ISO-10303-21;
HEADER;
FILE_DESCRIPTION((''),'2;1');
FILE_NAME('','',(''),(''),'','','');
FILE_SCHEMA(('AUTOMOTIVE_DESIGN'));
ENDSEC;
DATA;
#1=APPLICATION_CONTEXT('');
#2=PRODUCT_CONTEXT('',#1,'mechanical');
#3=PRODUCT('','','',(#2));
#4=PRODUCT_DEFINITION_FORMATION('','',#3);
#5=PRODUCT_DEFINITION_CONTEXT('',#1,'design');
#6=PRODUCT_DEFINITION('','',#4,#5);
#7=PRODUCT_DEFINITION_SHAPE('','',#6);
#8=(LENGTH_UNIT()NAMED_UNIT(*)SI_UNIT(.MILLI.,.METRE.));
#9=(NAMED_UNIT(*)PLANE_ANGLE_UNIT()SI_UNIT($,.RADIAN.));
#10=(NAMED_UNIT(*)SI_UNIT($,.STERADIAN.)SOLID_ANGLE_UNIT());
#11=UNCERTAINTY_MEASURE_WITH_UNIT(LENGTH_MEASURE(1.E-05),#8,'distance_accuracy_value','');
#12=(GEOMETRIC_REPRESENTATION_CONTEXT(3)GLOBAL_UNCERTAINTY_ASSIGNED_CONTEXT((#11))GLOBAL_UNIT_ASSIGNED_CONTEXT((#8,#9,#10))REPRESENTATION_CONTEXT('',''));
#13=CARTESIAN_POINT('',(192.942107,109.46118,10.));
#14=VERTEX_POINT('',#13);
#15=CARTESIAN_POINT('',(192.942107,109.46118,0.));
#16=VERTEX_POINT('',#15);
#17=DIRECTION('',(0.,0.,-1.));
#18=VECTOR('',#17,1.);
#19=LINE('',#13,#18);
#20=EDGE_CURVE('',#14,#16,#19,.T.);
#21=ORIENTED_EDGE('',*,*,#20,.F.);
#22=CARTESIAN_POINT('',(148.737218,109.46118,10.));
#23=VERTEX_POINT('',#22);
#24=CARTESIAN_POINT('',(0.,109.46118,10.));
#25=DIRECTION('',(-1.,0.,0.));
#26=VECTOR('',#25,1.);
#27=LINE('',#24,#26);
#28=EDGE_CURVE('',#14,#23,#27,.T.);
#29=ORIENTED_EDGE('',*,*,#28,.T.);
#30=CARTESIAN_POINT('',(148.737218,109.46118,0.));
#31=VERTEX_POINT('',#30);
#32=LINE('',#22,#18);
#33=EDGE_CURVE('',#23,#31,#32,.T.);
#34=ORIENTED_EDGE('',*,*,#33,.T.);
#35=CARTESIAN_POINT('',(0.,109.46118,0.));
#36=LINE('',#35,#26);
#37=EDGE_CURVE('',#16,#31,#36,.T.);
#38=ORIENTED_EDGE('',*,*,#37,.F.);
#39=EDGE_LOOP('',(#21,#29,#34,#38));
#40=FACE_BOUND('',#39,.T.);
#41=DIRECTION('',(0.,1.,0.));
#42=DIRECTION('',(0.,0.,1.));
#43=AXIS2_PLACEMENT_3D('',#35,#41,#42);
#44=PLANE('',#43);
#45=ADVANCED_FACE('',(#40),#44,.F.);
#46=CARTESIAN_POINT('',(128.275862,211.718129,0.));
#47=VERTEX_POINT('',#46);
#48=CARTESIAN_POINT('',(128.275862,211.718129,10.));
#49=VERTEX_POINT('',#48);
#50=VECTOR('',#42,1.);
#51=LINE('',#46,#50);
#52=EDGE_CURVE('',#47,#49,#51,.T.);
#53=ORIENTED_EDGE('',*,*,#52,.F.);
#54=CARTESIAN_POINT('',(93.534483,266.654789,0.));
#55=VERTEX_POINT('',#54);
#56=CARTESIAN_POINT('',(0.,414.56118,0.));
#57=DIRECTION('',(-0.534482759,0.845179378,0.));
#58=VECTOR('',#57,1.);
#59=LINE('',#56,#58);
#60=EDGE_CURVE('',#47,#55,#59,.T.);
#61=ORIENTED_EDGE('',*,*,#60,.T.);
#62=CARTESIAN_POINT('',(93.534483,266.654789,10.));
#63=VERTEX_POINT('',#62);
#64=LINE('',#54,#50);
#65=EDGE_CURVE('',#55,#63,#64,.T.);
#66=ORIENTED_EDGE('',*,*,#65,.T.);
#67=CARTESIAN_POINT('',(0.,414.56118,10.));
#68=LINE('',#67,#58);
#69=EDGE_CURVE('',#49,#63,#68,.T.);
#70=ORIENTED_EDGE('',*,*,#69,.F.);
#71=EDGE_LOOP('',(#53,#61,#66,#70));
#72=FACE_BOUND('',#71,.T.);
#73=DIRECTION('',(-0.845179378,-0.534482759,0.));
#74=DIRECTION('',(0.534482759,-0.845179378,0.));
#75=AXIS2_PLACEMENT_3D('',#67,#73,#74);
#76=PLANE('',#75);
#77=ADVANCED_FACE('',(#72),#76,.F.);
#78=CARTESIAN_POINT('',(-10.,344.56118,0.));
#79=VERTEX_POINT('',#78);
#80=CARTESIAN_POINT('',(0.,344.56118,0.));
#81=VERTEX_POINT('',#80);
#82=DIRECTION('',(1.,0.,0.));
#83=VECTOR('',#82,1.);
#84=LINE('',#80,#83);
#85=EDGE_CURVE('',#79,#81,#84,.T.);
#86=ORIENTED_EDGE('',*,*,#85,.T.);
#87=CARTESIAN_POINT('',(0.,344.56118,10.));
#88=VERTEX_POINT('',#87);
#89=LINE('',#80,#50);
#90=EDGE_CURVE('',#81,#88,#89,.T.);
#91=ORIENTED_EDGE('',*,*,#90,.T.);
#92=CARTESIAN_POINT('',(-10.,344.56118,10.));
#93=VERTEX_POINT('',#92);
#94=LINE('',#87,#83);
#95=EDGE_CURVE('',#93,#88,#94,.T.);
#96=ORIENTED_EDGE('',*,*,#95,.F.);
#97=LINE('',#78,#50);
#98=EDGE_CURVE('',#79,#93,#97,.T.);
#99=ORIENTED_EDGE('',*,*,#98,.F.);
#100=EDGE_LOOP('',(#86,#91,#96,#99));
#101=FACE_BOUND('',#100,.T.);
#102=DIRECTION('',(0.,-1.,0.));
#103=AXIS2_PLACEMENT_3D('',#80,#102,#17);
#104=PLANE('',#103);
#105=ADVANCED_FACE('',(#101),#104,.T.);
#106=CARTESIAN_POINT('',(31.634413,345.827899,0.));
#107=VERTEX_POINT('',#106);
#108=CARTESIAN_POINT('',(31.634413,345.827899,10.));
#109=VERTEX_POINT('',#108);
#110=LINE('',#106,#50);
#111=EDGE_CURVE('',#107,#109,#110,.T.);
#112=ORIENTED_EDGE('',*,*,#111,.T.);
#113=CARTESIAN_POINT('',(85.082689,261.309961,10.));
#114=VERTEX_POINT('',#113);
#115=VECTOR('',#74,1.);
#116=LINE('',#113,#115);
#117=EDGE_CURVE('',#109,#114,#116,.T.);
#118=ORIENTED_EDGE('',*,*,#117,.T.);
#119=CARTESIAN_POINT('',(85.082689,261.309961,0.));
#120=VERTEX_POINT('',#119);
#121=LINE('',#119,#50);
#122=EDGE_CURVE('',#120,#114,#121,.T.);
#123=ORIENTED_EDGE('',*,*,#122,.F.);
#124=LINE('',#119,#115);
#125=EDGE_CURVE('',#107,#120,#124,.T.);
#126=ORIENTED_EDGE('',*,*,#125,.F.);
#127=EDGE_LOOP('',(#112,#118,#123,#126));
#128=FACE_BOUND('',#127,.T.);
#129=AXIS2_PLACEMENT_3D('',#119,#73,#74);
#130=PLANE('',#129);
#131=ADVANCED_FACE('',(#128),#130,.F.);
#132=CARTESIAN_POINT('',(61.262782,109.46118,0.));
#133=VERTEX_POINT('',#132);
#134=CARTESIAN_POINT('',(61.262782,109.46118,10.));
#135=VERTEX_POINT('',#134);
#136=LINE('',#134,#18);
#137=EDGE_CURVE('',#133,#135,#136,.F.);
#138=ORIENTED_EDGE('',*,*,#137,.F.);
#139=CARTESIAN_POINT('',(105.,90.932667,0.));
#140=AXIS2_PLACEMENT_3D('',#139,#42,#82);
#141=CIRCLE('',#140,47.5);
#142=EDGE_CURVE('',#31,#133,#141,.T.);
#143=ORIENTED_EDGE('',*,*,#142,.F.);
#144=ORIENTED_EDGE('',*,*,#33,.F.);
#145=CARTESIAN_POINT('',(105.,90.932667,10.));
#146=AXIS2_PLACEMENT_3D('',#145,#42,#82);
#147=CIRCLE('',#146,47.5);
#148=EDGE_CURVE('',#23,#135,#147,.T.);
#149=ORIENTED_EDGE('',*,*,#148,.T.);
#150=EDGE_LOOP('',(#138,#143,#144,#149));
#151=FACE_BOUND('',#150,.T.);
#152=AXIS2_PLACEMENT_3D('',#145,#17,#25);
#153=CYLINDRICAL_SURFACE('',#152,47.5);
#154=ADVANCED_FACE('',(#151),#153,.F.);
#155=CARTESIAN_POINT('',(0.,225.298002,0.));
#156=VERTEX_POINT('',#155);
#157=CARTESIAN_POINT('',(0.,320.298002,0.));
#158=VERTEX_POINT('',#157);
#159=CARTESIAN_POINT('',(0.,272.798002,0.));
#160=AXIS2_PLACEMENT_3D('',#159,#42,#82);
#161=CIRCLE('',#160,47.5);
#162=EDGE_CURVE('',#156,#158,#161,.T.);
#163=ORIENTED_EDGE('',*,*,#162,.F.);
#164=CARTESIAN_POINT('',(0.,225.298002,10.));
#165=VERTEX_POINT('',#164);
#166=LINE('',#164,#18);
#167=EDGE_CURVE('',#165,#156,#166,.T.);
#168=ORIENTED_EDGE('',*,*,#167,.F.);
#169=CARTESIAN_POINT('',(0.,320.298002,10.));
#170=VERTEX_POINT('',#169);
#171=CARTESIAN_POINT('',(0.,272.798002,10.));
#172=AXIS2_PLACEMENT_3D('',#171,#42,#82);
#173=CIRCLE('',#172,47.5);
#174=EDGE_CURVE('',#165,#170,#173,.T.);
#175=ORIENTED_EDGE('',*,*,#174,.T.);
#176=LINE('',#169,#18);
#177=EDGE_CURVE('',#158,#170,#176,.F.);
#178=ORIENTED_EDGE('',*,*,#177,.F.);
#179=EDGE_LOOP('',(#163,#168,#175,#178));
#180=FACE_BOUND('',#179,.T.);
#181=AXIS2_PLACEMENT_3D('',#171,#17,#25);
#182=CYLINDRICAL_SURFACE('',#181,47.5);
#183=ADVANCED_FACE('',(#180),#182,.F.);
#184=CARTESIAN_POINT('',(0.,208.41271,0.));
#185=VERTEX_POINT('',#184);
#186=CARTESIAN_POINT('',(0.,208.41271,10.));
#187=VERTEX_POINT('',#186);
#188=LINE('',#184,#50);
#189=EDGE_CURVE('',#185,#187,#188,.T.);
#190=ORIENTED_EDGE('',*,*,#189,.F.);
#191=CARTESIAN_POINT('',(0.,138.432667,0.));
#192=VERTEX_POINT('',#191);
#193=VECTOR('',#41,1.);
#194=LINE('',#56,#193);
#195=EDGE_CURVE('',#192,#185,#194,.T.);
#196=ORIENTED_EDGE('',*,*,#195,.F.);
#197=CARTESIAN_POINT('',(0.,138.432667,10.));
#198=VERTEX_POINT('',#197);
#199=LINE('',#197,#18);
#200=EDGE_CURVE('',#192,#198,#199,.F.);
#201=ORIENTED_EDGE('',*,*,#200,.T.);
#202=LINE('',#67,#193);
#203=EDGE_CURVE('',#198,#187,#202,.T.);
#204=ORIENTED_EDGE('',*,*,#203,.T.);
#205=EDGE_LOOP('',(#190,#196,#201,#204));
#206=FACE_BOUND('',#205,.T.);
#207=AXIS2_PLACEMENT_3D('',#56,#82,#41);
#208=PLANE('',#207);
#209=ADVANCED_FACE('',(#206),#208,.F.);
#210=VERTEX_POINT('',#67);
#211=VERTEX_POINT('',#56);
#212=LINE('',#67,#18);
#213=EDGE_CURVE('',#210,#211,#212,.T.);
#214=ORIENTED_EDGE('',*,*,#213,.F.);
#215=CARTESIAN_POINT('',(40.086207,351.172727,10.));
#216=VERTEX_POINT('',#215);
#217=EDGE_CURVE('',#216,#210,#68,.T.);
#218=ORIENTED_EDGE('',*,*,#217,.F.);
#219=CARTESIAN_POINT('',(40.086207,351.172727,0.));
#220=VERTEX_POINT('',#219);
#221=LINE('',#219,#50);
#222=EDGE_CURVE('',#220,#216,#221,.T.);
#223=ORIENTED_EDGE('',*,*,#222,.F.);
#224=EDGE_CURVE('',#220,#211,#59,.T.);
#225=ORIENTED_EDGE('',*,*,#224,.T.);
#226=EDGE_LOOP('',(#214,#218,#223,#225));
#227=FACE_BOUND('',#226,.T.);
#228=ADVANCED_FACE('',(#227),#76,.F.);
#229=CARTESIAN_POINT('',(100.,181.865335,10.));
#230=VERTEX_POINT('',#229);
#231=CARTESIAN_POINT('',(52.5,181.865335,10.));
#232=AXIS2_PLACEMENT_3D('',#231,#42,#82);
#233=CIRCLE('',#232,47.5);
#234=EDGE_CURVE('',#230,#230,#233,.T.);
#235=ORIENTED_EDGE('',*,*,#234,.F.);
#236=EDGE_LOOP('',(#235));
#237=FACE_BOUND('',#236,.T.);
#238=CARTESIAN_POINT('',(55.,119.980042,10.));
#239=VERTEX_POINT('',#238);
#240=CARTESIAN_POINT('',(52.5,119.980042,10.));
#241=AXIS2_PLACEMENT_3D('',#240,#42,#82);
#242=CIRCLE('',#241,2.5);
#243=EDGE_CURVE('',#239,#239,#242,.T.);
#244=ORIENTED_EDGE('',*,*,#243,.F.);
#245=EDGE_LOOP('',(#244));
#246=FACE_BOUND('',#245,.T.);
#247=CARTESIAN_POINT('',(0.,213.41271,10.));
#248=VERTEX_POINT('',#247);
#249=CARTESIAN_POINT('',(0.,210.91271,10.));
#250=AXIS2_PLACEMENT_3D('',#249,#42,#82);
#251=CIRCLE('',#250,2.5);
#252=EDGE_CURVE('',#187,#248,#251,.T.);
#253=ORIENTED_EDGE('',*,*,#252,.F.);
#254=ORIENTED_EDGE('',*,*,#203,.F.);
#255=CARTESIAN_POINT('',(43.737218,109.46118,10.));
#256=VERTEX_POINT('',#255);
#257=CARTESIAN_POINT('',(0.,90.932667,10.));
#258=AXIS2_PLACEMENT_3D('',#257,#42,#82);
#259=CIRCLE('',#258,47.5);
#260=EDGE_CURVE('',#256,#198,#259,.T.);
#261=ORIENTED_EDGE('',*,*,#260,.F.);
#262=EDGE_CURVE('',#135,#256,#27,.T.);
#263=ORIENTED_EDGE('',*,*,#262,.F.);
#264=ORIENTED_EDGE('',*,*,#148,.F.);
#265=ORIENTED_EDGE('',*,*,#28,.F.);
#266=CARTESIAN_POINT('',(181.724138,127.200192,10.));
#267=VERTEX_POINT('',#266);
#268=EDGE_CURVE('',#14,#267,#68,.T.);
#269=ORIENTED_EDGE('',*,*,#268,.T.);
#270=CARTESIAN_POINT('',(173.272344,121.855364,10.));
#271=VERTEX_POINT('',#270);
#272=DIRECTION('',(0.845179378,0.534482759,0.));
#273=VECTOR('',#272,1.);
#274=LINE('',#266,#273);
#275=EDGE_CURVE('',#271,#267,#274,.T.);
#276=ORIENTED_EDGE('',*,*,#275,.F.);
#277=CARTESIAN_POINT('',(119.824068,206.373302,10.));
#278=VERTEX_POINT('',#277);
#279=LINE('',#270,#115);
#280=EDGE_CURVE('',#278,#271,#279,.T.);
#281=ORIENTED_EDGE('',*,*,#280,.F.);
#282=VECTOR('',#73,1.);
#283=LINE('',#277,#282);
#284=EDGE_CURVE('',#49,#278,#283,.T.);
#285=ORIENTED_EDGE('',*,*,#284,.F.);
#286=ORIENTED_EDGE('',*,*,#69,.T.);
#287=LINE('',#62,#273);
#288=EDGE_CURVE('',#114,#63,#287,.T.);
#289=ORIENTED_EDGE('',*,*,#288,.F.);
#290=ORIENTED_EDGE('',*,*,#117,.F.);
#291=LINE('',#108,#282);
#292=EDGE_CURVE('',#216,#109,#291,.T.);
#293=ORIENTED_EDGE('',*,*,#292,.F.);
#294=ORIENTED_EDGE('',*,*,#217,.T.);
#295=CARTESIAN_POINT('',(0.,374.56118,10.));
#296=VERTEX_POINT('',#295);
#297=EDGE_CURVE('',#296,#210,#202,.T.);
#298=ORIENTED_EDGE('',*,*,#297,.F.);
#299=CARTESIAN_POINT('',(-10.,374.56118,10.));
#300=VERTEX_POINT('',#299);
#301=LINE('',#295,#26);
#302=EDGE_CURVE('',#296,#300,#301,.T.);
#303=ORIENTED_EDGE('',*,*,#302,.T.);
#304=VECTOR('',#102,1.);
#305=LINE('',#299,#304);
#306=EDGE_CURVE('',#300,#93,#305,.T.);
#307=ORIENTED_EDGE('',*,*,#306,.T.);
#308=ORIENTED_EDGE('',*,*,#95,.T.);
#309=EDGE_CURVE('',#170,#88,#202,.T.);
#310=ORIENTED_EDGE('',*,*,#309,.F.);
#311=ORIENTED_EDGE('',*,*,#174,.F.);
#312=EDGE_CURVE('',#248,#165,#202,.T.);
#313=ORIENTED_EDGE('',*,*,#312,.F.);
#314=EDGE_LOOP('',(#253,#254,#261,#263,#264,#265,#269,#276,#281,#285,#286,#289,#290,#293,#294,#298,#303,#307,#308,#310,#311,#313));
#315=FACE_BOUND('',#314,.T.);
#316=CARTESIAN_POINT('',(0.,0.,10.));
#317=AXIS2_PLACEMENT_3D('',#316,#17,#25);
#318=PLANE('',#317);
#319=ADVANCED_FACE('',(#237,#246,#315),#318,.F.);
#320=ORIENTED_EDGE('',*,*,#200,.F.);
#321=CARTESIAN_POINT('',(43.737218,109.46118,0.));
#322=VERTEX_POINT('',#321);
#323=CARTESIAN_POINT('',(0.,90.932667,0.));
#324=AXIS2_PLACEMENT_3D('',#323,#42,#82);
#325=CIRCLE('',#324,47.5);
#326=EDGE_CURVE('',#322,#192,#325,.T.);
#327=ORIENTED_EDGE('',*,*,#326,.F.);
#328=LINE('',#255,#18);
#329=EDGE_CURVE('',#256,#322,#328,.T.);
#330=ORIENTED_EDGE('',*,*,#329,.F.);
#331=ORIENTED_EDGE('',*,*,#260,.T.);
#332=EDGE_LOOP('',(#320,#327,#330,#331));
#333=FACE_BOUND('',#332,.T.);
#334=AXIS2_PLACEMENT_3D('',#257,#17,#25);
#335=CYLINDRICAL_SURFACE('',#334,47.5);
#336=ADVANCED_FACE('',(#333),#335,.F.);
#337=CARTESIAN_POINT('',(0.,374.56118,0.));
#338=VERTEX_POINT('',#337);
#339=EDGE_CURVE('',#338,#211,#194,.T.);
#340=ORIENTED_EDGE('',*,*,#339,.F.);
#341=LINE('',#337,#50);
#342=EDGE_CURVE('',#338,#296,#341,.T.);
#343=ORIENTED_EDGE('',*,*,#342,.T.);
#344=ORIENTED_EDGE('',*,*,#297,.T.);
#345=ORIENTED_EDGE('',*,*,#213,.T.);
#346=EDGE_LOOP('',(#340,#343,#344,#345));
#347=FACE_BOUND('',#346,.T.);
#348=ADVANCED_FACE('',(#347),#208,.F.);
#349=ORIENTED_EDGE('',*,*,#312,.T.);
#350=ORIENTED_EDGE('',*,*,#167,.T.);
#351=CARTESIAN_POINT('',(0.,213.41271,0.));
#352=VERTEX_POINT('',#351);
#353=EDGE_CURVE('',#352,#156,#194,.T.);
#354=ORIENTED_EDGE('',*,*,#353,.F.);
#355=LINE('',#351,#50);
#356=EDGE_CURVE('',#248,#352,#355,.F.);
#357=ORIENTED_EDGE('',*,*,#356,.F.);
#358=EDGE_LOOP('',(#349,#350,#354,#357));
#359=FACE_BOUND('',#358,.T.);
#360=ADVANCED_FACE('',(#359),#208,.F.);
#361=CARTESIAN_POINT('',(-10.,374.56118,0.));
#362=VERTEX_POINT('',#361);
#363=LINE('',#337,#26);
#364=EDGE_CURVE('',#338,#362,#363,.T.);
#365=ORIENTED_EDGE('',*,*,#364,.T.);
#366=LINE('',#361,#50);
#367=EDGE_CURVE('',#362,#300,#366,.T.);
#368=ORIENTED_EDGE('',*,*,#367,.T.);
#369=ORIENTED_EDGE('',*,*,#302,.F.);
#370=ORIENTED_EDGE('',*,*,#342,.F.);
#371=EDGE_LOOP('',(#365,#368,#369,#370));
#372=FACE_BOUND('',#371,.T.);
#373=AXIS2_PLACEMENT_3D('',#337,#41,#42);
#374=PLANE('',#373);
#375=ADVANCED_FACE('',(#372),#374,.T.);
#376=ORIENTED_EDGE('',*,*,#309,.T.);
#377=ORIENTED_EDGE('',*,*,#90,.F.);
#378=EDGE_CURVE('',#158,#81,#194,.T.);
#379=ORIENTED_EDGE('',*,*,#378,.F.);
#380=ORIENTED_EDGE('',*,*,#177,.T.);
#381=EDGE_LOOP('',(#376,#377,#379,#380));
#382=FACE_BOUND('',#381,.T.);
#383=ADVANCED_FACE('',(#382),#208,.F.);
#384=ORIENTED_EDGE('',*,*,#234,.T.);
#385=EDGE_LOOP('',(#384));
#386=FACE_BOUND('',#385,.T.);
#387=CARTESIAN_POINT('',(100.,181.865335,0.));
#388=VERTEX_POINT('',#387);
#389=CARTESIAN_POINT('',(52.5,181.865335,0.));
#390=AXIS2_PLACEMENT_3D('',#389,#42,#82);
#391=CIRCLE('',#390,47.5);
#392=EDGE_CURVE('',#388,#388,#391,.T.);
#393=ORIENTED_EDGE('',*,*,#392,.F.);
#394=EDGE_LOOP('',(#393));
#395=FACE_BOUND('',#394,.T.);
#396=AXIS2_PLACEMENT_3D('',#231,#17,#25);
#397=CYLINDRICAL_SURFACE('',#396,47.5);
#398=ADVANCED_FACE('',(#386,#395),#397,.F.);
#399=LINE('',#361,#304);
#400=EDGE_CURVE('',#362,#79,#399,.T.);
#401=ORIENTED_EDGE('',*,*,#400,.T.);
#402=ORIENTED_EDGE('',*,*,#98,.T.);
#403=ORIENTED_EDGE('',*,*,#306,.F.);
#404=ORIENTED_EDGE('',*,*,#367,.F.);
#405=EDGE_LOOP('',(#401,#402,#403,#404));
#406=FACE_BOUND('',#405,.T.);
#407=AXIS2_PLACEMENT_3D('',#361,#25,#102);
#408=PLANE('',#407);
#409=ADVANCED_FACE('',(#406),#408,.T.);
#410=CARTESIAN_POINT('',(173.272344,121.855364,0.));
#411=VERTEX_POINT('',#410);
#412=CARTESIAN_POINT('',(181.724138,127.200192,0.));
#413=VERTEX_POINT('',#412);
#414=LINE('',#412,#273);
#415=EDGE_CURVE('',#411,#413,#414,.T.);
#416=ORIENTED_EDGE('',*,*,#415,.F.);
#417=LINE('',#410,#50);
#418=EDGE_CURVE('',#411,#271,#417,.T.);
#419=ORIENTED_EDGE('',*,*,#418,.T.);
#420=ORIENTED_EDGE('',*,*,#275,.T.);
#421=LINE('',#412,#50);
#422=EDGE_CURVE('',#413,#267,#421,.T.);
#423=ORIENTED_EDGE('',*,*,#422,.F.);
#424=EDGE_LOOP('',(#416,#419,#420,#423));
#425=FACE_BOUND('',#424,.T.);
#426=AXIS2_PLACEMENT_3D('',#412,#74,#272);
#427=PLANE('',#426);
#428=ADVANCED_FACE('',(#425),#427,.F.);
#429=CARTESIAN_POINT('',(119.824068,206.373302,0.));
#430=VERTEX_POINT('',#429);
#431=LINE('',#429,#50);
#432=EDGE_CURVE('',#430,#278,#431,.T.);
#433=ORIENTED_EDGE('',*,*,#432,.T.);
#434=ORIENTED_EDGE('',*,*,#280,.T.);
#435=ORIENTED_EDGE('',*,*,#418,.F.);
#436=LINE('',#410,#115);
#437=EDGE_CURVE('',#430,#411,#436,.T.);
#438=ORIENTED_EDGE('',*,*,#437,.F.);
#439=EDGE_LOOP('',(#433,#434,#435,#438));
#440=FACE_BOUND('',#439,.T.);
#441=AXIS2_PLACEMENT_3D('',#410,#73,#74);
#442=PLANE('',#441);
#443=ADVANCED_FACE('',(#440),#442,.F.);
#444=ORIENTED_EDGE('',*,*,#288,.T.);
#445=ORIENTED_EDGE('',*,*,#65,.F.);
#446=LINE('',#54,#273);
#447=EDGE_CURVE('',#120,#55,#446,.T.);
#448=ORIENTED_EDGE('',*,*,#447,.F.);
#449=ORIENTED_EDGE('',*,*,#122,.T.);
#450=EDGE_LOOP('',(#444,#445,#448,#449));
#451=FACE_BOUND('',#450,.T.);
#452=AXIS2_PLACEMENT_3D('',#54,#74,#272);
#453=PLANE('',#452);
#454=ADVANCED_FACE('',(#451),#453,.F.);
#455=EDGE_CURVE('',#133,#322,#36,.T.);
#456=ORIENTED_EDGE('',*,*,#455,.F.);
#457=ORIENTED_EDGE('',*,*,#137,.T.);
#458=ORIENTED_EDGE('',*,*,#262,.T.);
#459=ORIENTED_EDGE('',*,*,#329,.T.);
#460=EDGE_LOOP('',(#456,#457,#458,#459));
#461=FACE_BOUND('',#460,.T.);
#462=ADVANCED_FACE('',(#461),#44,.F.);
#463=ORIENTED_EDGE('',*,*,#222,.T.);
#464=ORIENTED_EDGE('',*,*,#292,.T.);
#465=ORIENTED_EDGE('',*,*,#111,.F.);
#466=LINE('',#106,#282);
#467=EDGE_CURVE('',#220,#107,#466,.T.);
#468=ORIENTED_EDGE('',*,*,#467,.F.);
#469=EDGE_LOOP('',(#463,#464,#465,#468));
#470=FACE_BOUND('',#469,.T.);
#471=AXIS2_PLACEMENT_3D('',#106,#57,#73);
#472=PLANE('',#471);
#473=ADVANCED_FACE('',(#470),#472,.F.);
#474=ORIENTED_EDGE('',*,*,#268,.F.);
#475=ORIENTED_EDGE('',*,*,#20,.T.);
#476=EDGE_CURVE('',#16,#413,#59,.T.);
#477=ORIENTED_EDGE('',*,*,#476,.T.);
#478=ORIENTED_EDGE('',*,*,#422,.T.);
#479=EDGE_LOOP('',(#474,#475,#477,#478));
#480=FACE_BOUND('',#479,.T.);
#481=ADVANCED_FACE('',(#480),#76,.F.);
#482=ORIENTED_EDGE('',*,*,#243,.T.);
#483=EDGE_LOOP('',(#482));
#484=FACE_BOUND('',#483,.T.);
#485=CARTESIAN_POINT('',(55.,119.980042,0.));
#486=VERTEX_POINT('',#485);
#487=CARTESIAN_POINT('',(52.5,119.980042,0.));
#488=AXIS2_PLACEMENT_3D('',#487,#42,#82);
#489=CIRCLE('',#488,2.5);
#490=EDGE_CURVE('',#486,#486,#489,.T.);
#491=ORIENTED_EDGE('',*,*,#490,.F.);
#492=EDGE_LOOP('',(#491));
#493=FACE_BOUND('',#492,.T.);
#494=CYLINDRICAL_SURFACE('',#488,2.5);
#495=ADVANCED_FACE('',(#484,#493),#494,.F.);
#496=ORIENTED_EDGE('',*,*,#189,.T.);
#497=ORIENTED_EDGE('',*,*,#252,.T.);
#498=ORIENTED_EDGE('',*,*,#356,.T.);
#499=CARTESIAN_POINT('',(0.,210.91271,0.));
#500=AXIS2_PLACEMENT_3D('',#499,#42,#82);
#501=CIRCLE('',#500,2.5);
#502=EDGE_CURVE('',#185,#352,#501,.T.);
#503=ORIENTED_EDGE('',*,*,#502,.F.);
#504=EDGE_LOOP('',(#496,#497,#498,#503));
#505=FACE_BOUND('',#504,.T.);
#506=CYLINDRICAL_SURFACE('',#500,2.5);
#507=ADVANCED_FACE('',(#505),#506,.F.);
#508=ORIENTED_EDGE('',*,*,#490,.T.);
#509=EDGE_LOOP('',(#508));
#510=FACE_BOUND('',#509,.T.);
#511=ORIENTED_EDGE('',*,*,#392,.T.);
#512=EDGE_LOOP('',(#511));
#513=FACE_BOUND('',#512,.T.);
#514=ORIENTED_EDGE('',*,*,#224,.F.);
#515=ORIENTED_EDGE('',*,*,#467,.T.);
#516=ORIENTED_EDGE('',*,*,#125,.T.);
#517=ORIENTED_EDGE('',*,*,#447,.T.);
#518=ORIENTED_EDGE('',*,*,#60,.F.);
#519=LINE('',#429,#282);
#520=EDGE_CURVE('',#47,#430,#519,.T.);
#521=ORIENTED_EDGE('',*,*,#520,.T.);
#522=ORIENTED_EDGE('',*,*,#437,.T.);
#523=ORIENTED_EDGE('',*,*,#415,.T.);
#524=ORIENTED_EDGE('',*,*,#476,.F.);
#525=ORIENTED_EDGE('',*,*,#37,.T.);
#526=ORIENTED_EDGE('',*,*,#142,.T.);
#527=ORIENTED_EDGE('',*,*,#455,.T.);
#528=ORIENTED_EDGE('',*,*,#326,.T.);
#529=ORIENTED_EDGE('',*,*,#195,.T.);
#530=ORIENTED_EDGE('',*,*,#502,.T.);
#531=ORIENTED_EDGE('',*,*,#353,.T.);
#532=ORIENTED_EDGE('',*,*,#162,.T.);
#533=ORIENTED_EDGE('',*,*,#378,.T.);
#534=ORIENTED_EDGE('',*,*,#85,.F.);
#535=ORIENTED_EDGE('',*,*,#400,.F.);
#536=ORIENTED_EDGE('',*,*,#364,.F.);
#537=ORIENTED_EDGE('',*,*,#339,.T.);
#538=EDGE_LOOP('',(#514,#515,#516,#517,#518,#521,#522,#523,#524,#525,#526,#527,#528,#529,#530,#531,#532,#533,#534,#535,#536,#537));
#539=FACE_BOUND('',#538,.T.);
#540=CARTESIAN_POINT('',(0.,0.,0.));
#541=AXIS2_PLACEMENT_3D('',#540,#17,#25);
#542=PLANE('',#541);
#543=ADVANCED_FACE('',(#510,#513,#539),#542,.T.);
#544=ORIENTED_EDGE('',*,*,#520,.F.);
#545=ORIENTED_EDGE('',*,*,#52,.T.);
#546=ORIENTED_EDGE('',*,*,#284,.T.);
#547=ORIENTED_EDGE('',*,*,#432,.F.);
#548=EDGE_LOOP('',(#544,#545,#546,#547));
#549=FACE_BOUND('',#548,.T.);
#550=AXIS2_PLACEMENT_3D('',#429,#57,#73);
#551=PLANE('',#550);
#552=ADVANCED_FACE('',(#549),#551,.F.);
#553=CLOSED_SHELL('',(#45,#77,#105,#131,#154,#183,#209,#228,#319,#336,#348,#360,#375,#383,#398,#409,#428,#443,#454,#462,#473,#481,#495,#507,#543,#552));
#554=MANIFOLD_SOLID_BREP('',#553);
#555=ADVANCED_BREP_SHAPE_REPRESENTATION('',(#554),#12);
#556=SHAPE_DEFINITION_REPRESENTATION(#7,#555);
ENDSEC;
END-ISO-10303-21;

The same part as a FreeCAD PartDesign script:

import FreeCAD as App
import Part
import Sketcher

V = App.Vector
Q = App.Units.Quantity

doc = App.newDocument("Part")
body = doc.addObject("PartDesign::Body", "Body")

sketch1 = body.newObject("Sketcher::SketchObject", "Sketch")
sketch1.AttachmentSupport = (doc.getObject("XY_Plane"), [""])
sketch1.MapMode = "FlatFace"
sketch1.addGeometry(Part.LineSegment(V(0, 415, 0), V(-310, -76, 0)), False)
sketch1.addGeometry(Part.LineSegment(V(-310, -76, 0), V(310, -76, 0)), False)
sketch1.addGeometry(Part.LineSegment(V(310, -76, 0), V(0, 415, 0)), False)
sketch1.addGeometry(Part.Circle(V(158, 0, 0), V(0, 0, 1), 48), False)
sketch1.addGeometry(Part.Circle(V(52, 0, 0), V(0, 0, 1), 48), False)
sketch1.addGeometry(Part.Circle(V(105, 91, 0), V(0, 0, 1), 48), False)
sketch1.addGeometry(Part.Circle(V(-52, 0, 0), V(0, 0, 1), 48), False)
sketch1.addGeometry(Part.Circle(V(-158, 0, 0), V(0, 0, 1), 48), False)
sketch1.addGeometry(Part.Circle(V(0, 91, 0), V(0, 0, 1), 48), False)
sketch1.addGeometry(Part.Circle(V(-105, 91, 0), V(0, 0, 1), 48), False)
sketch1.addGeometry(Part.Circle(V(52, 182, 0), V(0, 0, 1), 48), False)
sketch1.addGeometry(Part.Circle(V(-52, 182, 0), V(0, 0, 1), 48), False)
sketch1.addGeometry(Part.Circle(V(0, 273, 0), V(0, 0, 1), 48), False)
sketch1.addConstraint(Sketcher.Constraint("Coincident", 0, 2, 1, 1))
sketch1.addConstraint(Sketcher.Constraint("Coincident", 1, 2, 2, 1))
sketch1.addConstraint(Sketcher.Constraint("Coincident", 2, 2, 0, 1))
sketch1.addConstraint(Sketcher.Constraint("Horizontal", 1))
sketch1.addConstraint(Sketcher.Constraint("Equal", 3, 4))
sketch1.addConstraint(Sketcher.Constraint("Equal", 4, 5))
sketch1.addConstraint(Sketcher.Constraint("Equal", 5, 6))
sketch1.addConstraint(Sketcher.Constraint("Equal", 6, 7))
sketch1.addConstraint(Sketcher.Constraint("Equal", 7, 8))
sketch1.addConstraint(Sketcher.Constraint("Equal", 8, 9))
sketch1.addConstraint(Sketcher.Constraint("Equal", 9, 10))
sketch1.addConstraint(Sketcher.Constraint("Equal", 10, 11))
sketch1.addConstraint(Sketcher.Constraint("Equal", 11, 12))
sketch1.addConstraint(Sketcher.Constraint("Symmetric", 4, 3, 6, 3, -1, 1))
sketch1.addConstraint(Sketcher.Constraint("Symmetric", 3, 3, 7, 3, -1, 1))
sketch1.addConstraint(Sketcher.Constraint("Symmetric", 5, 3, 9, 3, -2))
sketch1.addConstraint(Sketcher.Constraint("Symmetric", 10, 3, 11, 3, -2))
sketch1.addConstraint(Sketcher.Constraint("PointOnObject", 3, 3, -1))
sketch1.addConstraint(Sketcher.Constraint("PointOnObject", 4, 3, -1))
sketch1.addConstraint(Sketcher.Constraint("PointOnObject", 8, 3, -2))
sketch1.addConstraint(Sketcher.Constraint("PointOnObject", 12, 3, -2))
sketch1.addConstraint(Sketcher.Constraint("PointOnObject", 2, 2, -2))
sketch1.addConstraint(Sketcher.Constraint("Horizontal", 5, 3, 8, 3))
sketch1.addConstraint(Sketcher.Constraint("Vertical", 4, 3, 10, 3))
sketch1.addConstraint(Sketcher.Constraint("Equal", 0, 2))
sketch1.addConstraint(Sketcher.Constraint("Diameter", 3, Q("95 mm")))
sketch1.addConstraint(Sketcher.Constraint("DistanceX", 1, 1, 1, 2, Q("620 mm")))
sketch1.addConstraint(Sketcher.Constraint("Distance", 0, Q("580 mm")))
sketch1.addConstraint(Sketcher.Constraint("DistanceX", -1, 1, 5, 3, Q("105 mm")))
sketch1.addConstraint(Sketcher.Constraint("DistanceX", 4, 3, 3, 3, Q("105 mm")))
sketch1.addConstraint(Sketcher.Constraint("DistanceX", 6, 3, 4, 3, Q("105 mm")))
sketch1.addConstraint(Sketcher.Constraint("DistanceY", 0, 2, -1, 1, Q("75.642859 mm")))
sketch1.addConstraint(Sketcher.Constraint("DistanceY", -1, 1, 5, 3, Q("90.932667 mm")))
sketch1.addConstraint(Sketcher.Constraint("DistanceY", -1, 1, 10, 3, Q("181.865335 mm")))
sketch1.addConstraint(Sketcher.Constraint("DistanceY", -1, 1, 12, 3, Q("272.798002 mm")))
pad1 = body.newObject("PartDesign::Pad", "Pad")
pad1.Profile = sketch1
pad1.Length = 10

sketch2 = body.newObject("Sketcher::SketchObject", "Sketch001")
sketch2.AttachmentSupport = (doc.getObject("XY_Plane"), [""])
sketch2.MapMode = "FlatFace"
sketch2.AttachmentOffset = App.Placement(V(0, 0, 10), App.Rotation())
sketch2.addGeometry(Part.LineSegment(V(-270, -12, 0), V(-261, -18, 0)), False)
sketch2.addGeometry(Part.LineSegment(V(-261, -18, 0), V(-208, 67, 0)), False)
sketch2.addGeometry(Part.LineSegment(V(-208, 67, 0), V(-216, 72, 0)), False)
sketch2.addGeometry(Part.LineSegment(V(-216, 72, 0), V(-270, -12, 0)), False)
sketch2.addGeometry(Part.LineSegment(V(-182, 127, 0), V(-173, 122, 0)), False)
sketch2.addGeometry(Part.LineSegment(V(-173, 122, 0), V(-120, 206, 0)), False)
sketch2.addGeometry(Part.LineSegment(V(-120, 206, 0), V(-128, 212, 0)), False)
sketch2.addGeometry(Part.LineSegment(V(-128, 212, 0), V(-182, 127, 0)), False)
sketch2.addGeometry(Part.LineSegment(V(-94, 267, 0), V(-85, 261, 0)), False)
sketch2.addGeometry(Part.LineSegment(V(-85, 261, 0), V(-32, 346, 0)), False)
sketch2.addGeometry(Part.LineSegment(V(-32, 346, 0), V(-40, 351, 0)), False)
sketch2.addGeometry(Part.LineSegment(V(-40, 351, 0), V(-94, 267, 0)), False)
sketch2.addGeometry(Part.LineSegment(V(261, -18, 0), V(270, -12, 0)), False)
sketch2.addGeometry(Part.LineSegment(V(270, -12, 0), V(216, 72, 0)), False)
sketch2.addGeometry(Part.LineSegment(V(216, 72, 0), V(208, 67, 0)), False)
sketch2.addGeometry(Part.LineSegment(V(208, 67, 0), V(261, -18, 0)), False)
sketch2.addGeometry(Part.LineSegment(V(173, 122, 0), V(182, 127, 0)), False)
sketch2.addGeometry(Part.LineSegment(V(182, 127, 0), V(128, 212, 0)), False)
sketch2.addGeometry(Part.LineSegment(V(128, 212, 0), V(120, 206, 0)), False)
sketch2.addGeometry(Part.LineSegment(V(120, 206, 0), V(173, 122, 0)), False)
sketch2.addGeometry(Part.LineSegment(V(85, 261, 0), V(94, 267, 0)), False)
sketch2.addGeometry(Part.LineSegment(V(94, 267, 0), V(40, 351, 0)), False)
sketch2.addGeometry(Part.LineSegment(V(40, 351, 0), V(32, 346, 0)), False)
sketch2.addGeometry(Part.LineSegment(V(32, 346, 0), V(85, 261, 0)), False)
sketch2.addGeometry(Part.LineSegment(V(-210, -66, 0), V(-210, -76, 0)), False)
sketch2.addGeometry(Part.LineSegment(V(-210, -76, 0), V(-110, -76, 0)), False)
sketch2.addGeometry(Part.LineSegment(V(-110, -76, 0), V(-110, -66, 0)), False)
sketch2.addGeometry(Part.LineSegment(V(-110, -66, 0), V(-210, -66, 0)), False)
sketch2.addGeometry(Part.LineSegment(V(110, -66, 0), V(110, -76, 0)), False)
sketch2.addGeometry(Part.LineSegment(V(110, -76, 0), V(210, -76, 0)), False)
sketch2.addGeometry(Part.LineSegment(V(210, -76, 0), V(210, -66, 0)), False)
sketch2.addGeometry(Part.LineSegment(V(210, -66, 0), V(110, -66, 0)), False)
sketch2.addConstraint(Sketcher.Constraint("Coincident", 0, 2, 1, 1))
sketch2.addConstraint(Sketcher.Constraint("Coincident", 1, 2, 2, 1))
sketch2.addConstraint(Sketcher.Constraint("Coincident", 2, 2, 3, 1))
sketch2.addConstraint(Sketcher.Constraint("Coincident", 3, 2, 0, 1))
sketch2.addConstraint(Sketcher.Constraint("Coincident", 4, 2, 5, 1))
sketch2.addConstraint(Sketcher.Constraint("Coincident", 5, 2, 6, 1))
sketch2.addConstraint(Sketcher.Constraint("Coincident", 6, 2, 7, 1))
sketch2.addConstraint(Sketcher.Constraint("Coincident", 7, 2, 4, 1))
sketch2.addConstraint(Sketcher.Constraint("Coincident", 8, 2, 9, 1))
sketch2.addConstraint(Sketcher.Constraint("Coincident", 9, 2, 10, 1))
sketch2.addConstraint(Sketcher.Constraint("Coincident", 10, 2, 11, 1))
sketch2.addConstraint(Sketcher.Constraint("Coincident", 11, 2, 8, 1))
sketch2.addConstraint(Sketcher.Constraint("Coincident", 12, 2, 13, 1))
sketch2.addConstraint(Sketcher.Constraint("Coincident", 13, 2, 14, 1))
sketch2.addConstraint(Sketcher.Constraint("Coincident", 14, 2, 15, 1))
sketch2.addConstraint(Sketcher.Constraint("Coincident", 15, 2, 12, 1))
sketch2.addConstraint(Sketcher.Constraint("Coincident", 16, 2, 17, 1))
sketch2.addConstraint(Sketcher.Constraint("Coincident", 17, 2, 18, 1))
sketch2.addConstraint(Sketcher.Constraint("Coincident", 18, 2, 19, 1))
sketch2.addConstraint(Sketcher.Constraint("Coincident", 19, 2, 16, 1))
sketch2.addConstraint(Sketcher.Constraint("Coincident", 20, 2, 21, 1))
sketch2.addConstraint(Sketcher.Constraint("Coincident", 21, 2, 22, 1))
sketch2.addConstraint(Sketcher.Constraint("Coincident", 22, 2, 23, 1))
sketch2.addConstraint(Sketcher.Constraint("Coincident", 23, 2, 20, 1))
sketch2.addConstraint(Sketcher.Constraint("Coincident", 24, 2, 25, 1))
sketch2.addConstraint(Sketcher.Constraint("Coincident", 25, 2, 26, 1))
sketch2.addConstraint(Sketcher.Constraint("Coincident", 26, 2, 27, 1))
sketch2.addConstraint(Sketcher.Constraint("Coincident", 27, 2, 24, 1))
sketch2.addConstraint(Sketcher.Constraint("Coincident", 28, 2, 29, 1))
sketch2.addConstraint(Sketcher.Constraint("Coincident", 29, 2, 30, 1))
sketch2.addConstraint(Sketcher.Constraint("Coincident", 30, 2, 31, 1))
sketch2.addConstraint(Sketcher.Constraint("Coincident", 31, 2, 28, 1))
sketch2.addConstraint(Sketcher.Constraint("Vertical", 24))
sketch2.addConstraint(Sketcher.Constraint("Horizontal", 25))
sketch2.addConstraint(Sketcher.Constraint("Vertical", 26))
sketch2.addConstraint(Sketcher.Constraint("Horizontal", 27))
sketch2.addConstraint(Sketcher.Constraint("Vertical", 28))
sketch2.addConstraint(Sketcher.Constraint("Horizontal", 29))
sketch2.addConstraint(Sketcher.Constraint("Vertical", 30))
sketch2.addConstraint(Sketcher.Constraint("Horizontal", 31))
sketch2.addConstraint(Sketcher.Constraint("Symmetric", 3, 2, 12, 2, -2))
sketch2.addConstraint(Sketcher.Constraint("Symmetric", 2, 2, 13, 2, -2))
sketch2.addConstraint(Sketcher.Constraint("Symmetric", 1, 2, 14, 2, -2))
sketch2.addConstraint(Sketcher.Constraint("Symmetric", 0, 2, 15, 2, -2))
sketch2.addConstraint(Sketcher.Constraint("Symmetric", 7, 2, 16, 2, -2))
sketch2.addConstraint(Sketcher.Constraint("Symmetric", 6, 2, 17, 2, -2))
sketch2.addConstraint(Sketcher.Constraint("Symmetric", 5, 2, 18, 2, -2))
sketch2.addConstraint(Sketcher.Constraint("Symmetric", 4, 2, 19, 2, -2))
sketch2.addConstraint(Sketcher.Constraint("Symmetric", 11, 2, 20, 2, -2))
sketch2.addConstraint(Sketcher.Constraint("Symmetric", 10, 2, 21, 2, -2))
sketch2.addConstraint(Sketcher.Constraint("Symmetric", 9, 2, 22, 2, -2))
sketch2.addConstraint(Sketcher.Constraint("Symmetric", 8, 2, 23, 2, -2))
sketch2.addConstraint(Sketcher.Constraint("Symmetric", 25, 2, 28, 2, -2))
sketch2.addConstraint(Sketcher.Constraint("Symmetric", 27, 2, 30, 2, -2))
sketch2.addConstraint(Sketcher.Constraint("Perpendicular", 0, 1))
sketch2.addConstraint(Sketcher.Constraint("Perpendicular", 1, 2))
sketch2.addConstraint(Sketcher.Constraint("Perpendicular", 2, 3))
sketch2.addConstraint(Sketcher.Constraint("Perpendicular", 3, 4))
sketch2.addConstraint(Sketcher.Constraint("Perpendicular", 4, 5))
sketch2.addConstraint(Sketcher.Constraint("Perpendicular", 5, 6))
sketch2.addConstraint(Sketcher.Constraint("Perpendicular", 6, 7))
sketch2.addConstraint(Sketcher.Constraint("Perpendicular", 7, 8))
sketch2.addConstraint(Sketcher.Constraint("Perpendicular", 8, 9))
sketch2.addConstraint(Sketcher.Constraint("Perpendicular", 9, 10))
sketch2.addConstraint(Sketcher.Constraint("Perpendicular", 10, 11))
sketch2.addConstraint(Sketcher.Constraint("Equal", 2, 4))
sketch2.addConstraint(Sketcher.Constraint("Equal", 3, 5))
sketch2.addConstraint(Sketcher.Constraint("Equal", 6, 8))
sketch2.addConstraint(Sketcher.Constraint("Equal", 7, 9))
sketch2.addConstraint(Sketcher.Constraint("DistanceX", 25, 1, 25, 2, Q("100 mm")))
sketch2.addConstraint(Sketcher.Constraint("DistanceY", 24, 2, 24, 1, Q("10 mm")))
sketch2.addConstraint(Sketcher.Constraint("Distance", 0, Q("10 mm")))
sketch2.addConstraint(Sketcher.Constraint("Distance", 1, Q("100 mm")))
sketch2.addConstraint(Sketcher.Constraint("DistanceX", 24, 2, -1, 1, Q("210 mm")))
sketch2.addConstraint(Sketcher.Constraint("DistanceX", 11, 2, 13, 2, Q("310 mm")))
sketch2.addConstraint(Sketcher.Constraint("DistanceX", 0, 2, -1, 1, Q("261.461999 mm")))
sketch2.addConstraint(Sketcher.Constraint("DistanceY", -1, 1, 5, 2, Q("206.373302 mm")))
sketch2.addConstraint(Sketcher.Constraint("DistanceY", -1, 1, 9, 2, Q("345.827899 mm")))
sketch2.addConstraint(Sketcher.Constraint("DistanceX", 5, 2, -1, 1, Q("119.824068 mm")))
sketch2.addConstraint(Sketcher.Constraint("DistanceY", -1, 1, 6, 2, Q("211.718129 mm")))
sketch2.addConstraint(Sketcher.Constraint("DistanceY", 24, 2, -1, 1, Q("75.642859 mm")))
sketch2.addConstraint(Sketcher.Constraint("DistanceY", 1, 2, 4, 2, Q("54.93666 mm")))
pocket1 = body.newObject("PartDesign::Pocket", "Pocket")
pocket1.Profile = sketch2
pocket1.Type = "ThroughAll"

sketch3 = body.newObject("Sketcher::SketchObject", "Sketch002")
sketch3.AttachmentSupport = (doc.getObject("XY_Plane"), [""])
sketch3.MapMode = "FlatFace"
sketch3.AttachmentOffset = App.Placement(V(0, 0, 10), App.Rotation())
sketch3.addGeometry(Part.Circle(V(-157.5, -55.6, 0), V(0, 0, 1), 2.5), False)
sketch3.addGeometry(Part.Circle(V(-52.5, -55.6, 0), V(0, 0, 1), 2.5), False)
sketch3.addGeometry(Part.Circle(V(52.5, -55.6, 0), V(0, 0, 1), 2.5), False)
sketch3.addGeometry(Part.Circle(V(157.5, -55.6, 0), V(0, 0, 1), 2.5), False)
sketch3.addGeometry(Part.Circle(V(-105, 29, 0), V(0, 0, 1), 2.5), False)
sketch3.addGeometry(Part.Circle(V(0, 29, 0), V(0, 0, 1), 2.5), False)
sketch3.addGeometry(Part.Circle(V(105, 29, 0), V(0, 0, 1), 2.5), False)
sketch3.addGeometry(Part.Circle(V(-52.5, 120, 0), V(0, 0, 1), 2.5), False)
sketch3.addGeometry(Part.Circle(V(52.5, 120, 0), V(0, 0, 1), 2.5), False)
sketch3.addGeometry(Part.Circle(V(0, 210.9, 0), V(0, 0, 1), 2.5), False)
sketch3.addConstraint(Sketcher.Constraint("Equal", 0, 1))
sketch3.addConstraint(Sketcher.Constraint("Equal", 1, 2))
sketch3.addConstraint(Sketcher.Constraint("Equal", 2, 3))
sketch3.addConstraint(Sketcher.Constraint("Equal", 3, 4))
sketch3.addConstraint(Sketcher.Constraint("Equal", 4, 5))
sketch3.addConstraint(Sketcher.Constraint("Equal", 5, 6))
sketch3.addConstraint(Sketcher.Constraint("Equal", 6, 7))
sketch3.addConstraint(Sketcher.Constraint("Equal", 7, 8))
sketch3.addConstraint(Sketcher.Constraint("Equal", 8, 9))
sketch3.addConstraint(Sketcher.Constraint("Symmetric", 1, 3, 2, 3, -2))
sketch3.addConstraint(Sketcher.Constraint("Symmetric", 0, 3, 3, 3, -2))
sketch3.addConstraint(Sketcher.Constraint("Symmetric", 4, 3, 6, 3, -2))
sketch3.addConstraint(Sketcher.Constraint("Symmetric", 7, 3, 8, 3, -2))
sketch3.addConstraint(Sketcher.Constraint("PointOnObject", 5, 3, -2))
sketch3.addConstraint(Sketcher.Constraint("PointOnObject", 9, 3, -2))
sketch3.addConstraint(Sketcher.Constraint("Horizontal", 0, 3, 1, 3))
sketch3.addConstraint(Sketcher.Constraint("Horizontal", 4, 3, 5, 3))
sketch3.addConstraint(Sketcher.Constraint("Vertical", 1, 3, 7, 3))
sketch3.addConstraint(Sketcher.Constraint("Diameter", 0, Q("5 mm")))
sketch3.addConstraint(Sketcher.Constraint("DistanceX", 4, 3, -1, 1, Q("105 mm")))
sketch3.addConstraint(Sketcher.Constraint("DistanceX", 0, 3, 1, 3, Q("105 mm")))
sketch3.addConstraint(Sketcher.Constraint("DistanceX", 1, 3, 2, 3, Q("105 mm")))
sketch3.addConstraint(Sketcher.Constraint("DistanceY", 1, 3, 7, 3, Q("175.622902 mm")))
sketch3.addConstraint(Sketcher.Constraint("DistanceY", 0, 3, -1, 1, Q("55.642859 mm")))
sketch3.addConstraint(Sketcher.Constraint("DistanceY", -1, 1, 9, 3, Q("210.91271 mm")))
sketch3.addConstraint(Sketcher.Constraint("DistanceY", -1, 1, 4, 3, Q("29.047375 mm")))
pocket2 = body.newObject("PartDesign::Pocket", "Pocket001")
pocket2.Profile = sketch3
pocket2.Type = "ThroughAll"

sketch4 = body.newObject("Sketcher::SketchObject", "Sketch003")
sketch4.AttachmentSupport = (doc.getObject("XY_Plane"), [""])
sketch4.MapMode = "FlatFace"
sketch4.AttachmentOffset = App.Placement(V(0, 0, 10), App.Rotation())
sketch4.addGeometry(Part.LineSegment(V(-75, -76, 0), V(-75, -196, 0)), False)
sketch4.addGeometry(Part.LineSegment(V(-75, -196, 0), V(75, -196, 0)), False)
sketch4.addGeometry(Part.LineSegment(V(75, -196, 0), V(75, -76, 0)), False)
sketch4.addGeometry(Part.LineSegment(V(75, -76, 0), V(-75, -76, 0)), False)
sketch4.addConstraint(Sketcher.Constraint("Coincident", 0, 2, 1, 1))
sketch4.addConstraint(Sketcher.Constraint("Coincident", 1, 2, 2, 1))
sketch4.addConstraint(Sketcher.Constraint("Coincident", 2, 2, 3, 1))
sketch4.addConstraint(Sketcher.Constraint("Coincident", 3, 2, 0, 1))
sketch4.addConstraint(Sketcher.Constraint("Vertical", 0))
sketch4.addConstraint(Sketcher.Constraint("Horizontal", 1))
sketch4.addConstraint(Sketcher.Constraint("Vertical", 2))
sketch4.addConstraint(Sketcher.Constraint("Horizontal", 3))
sketch4.addConstraint(Sketcher.Constraint("DistanceX", 1, 1, 1, 2, Q("150 mm")))
sketch4.addConstraint(Sketcher.Constraint("DistanceY", 0, 2, 0, 1, Q("120 mm")))
sketch4.addConstraint(Sketcher.Constraint("DistanceX", 0, 2, -1, 1, Q("75 mm")))
sketch4.addConstraint(Sketcher.Constraint("DistanceY", 0, 2, -1, 1, Q("195.642859 mm")))
pad2 = body.newObject("PartDesign::Pad", "Pad001")
pad2.Profile = sketch4
pad2.Length = 10
pad2.Reversed = True

sketch5 = body.newObject("Sketcher::SketchObject", "Sketch004")
sketch5.AttachmentSupport = (doc.getObject("XY_Plane"), [""])
sketch5.MapMode = "FlatFace"
sketch5.AttachmentOffset = App.Placement(V(0, 0, 10), App.Rotation())
sketch5.addGeometry(Part.LineSegment(V(-75, -111, 0), V(-75, -161, 0)), False)
sketch5.addGeometry(Part.LineSegment(V(-75, -161, 0), V(-65, -161, 0)), False)
sketch5.addGeometry(Part.LineSegment(V(-65, -161, 0), V(-65, -111, 0)), False)
sketch5.addGeometry(Part.LineSegment(V(-65, -111, 0), V(-75, -111, 0)), False)
sketch5.addGeometry(Part.LineSegment(V(-25, -186, 0), V(-25, -196, 0)), False)
sketch5.addGeometry(Part.LineSegment(V(-25, -196, 0), V(25, -196, 0)), False)
sketch5.addGeometry(Part.LineSegment(V(25, -196, 0), V(25, -186, 0)), False)
sketch5.addGeometry(Part.LineSegment(V(25, -186, 0), V(-25, -186, 0)), False)
sketch5.addGeometry(Part.LineSegment(V(65, -111, 0), V(65, -161, 0)), False)
sketch5.addGeometry(Part.LineSegment(V(65, -161, 0), V(75, -161, 0)), False)
sketch5.addGeometry(Part.LineSegment(V(75, -161, 0), V(75, -111, 0)), False)
sketch5.addGeometry(Part.LineSegment(V(75, -111, 0), V(65, -111, 0)), False)
sketch5.addConstraint(Sketcher.Constraint("Coincident", 0, 2, 1, 1))
sketch5.addConstraint(Sketcher.Constraint("Coincident", 1, 2, 2, 1))
sketch5.addConstraint(Sketcher.Constraint("Coincident", 2, 2, 3, 1))
sketch5.addConstraint(Sketcher.Constraint("Coincident", 3, 2, 0, 1))
sketch5.addConstraint(Sketcher.Constraint("Coincident", 4, 2, 5, 1))
sketch5.addConstraint(Sketcher.Constraint("Coincident", 5, 2, 6, 1))
sketch5.addConstraint(Sketcher.Constraint("Coincident", 6, 2, 7, 1))
sketch5.addConstraint(Sketcher.Constraint("Coincident", 7, 2, 4, 1))
sketch5.addConstraint(Sketcher.Constraint("Coincident", 8, 2, 9, 1))
sketch5.addConstraint(Sketcher.Constraint("Coincident", 9, 2, 10, 1))
sketch5.addConstraint(Sketcher.Constraint("Coincident", 10, 2, 11, 1))
sketch5.addConstraint(Sketcher.Constraint("Coincident", 11, 2, 8, 1))
sketch5.addConstraint(Sketcher.Constraint("Vertical", 0))
sketch5.addConstraint(Sketcher.Constraint("Horizontal", 1))
sketch5.addConstraint(Sketcher.Constraint("Vertical", 2))
sketch5.addConstraint(Sketcher.Constraint("Horizontal", 3))
sketch5.addConstraint(Sketcher.Constraint("Vertical", 4))
sketch5.addConstraint(Sketcher.Constraint("Horizontal", 5))
sketch5.addConstraint(Sketcher.Constraint("Vertical", 6))
sketch5.addConstraint(Sketcher.Constraint("Horizontal", 7))
sketch5.addConstraint(Sketcher.Constraint("Vertical", 8))
sketch5.addConstraint(Sketcher.Constraint("Horizontal", 9))
sketch5.addConstraint(Sketcher.Constraint("Vertical", 10))
sketch5.addConstraint(Sketcher.Constraint("Horizontal", 11))
sketch5.addConstraint(Sketcher.Constraint("Symmetric", 1, 2, 8, 2, -2))
sketch5.addConstraint(Sketcher.Constraint("Symmetric", 3, 2, 10, 2, -2))
sketch5.addConstraint(Sketcher.Constraint("Equal", 7, 0))
sketch5.addConstraint(Sketcher.Constraint("DistanceX", 1, 1, 1, 2, Q("10 mm")))
sketch5.addConstraint(Sketcher.Constraint("DistanceX", 5, 1, 5, 2, Q("50 mm")))
sketch5.addConstraint(Sketcher.Constraint("DistanceX", 0, 2, -1, 1, Q("75 mm")))
sketch5.addConstraint(Sketcher.Constraint("DistanceX", 4, 2, -1, 1, Q("25 mm")))
sketch5.addConstraint(Sketcher.Constraint("DistanceY", 4, 2, 1, 2, Q("35 mm")))
sketch5.addConstraint(Sketcher.Constraint("DistanceY", 4, 2, 4, 1, Q("9.5708 mm")))
sketch5.addConstraint(Sketcher.Constraint("DistanceY", 0, 2, -1, 1, Q("160.642859 mm")))
pocket3 = body.newObject("PartDesign::Pocket", "Pocket002")
pocket3.Profile = sketch5
pocket3.Length = 10

sketch6 = body.newObject("Sketcher::SketchObject", "Sketch005")
sketch6.AttachmentSupport = (doc.getObject("XY_Plane"), [""])
sketch6.MapMode = "FlatFace"
sketch6.AttachmentOffset = App.Placement(V(0, 0, 10), App.Rotation())
sketch6.addGeometry(Part.LineSegment(V(0, 109, 0), V(0, 415, 0)), False)
sketch6.addGeometry(Part.LineSegment(V(0, 415, 0), V(-389, 415, 0)), False)
sketch6.addGeometry(Part.LineSegment(V(-389, 415, 0), V(-389, -228, 0)), False)
sketch6.addGeometry(Part.LineSegment(V(-389, -228, 0), V(337, -228, 0)), False)
sketch6.addGeometry(Part.LineSegment(V(337, -228, 0), V(337, 109, 0)), False)
sketch6.addGeometry(Part.LineSegment(V(337, 109, 0), V(0, 109, 0)), False)
sketch6.addConstraint(Sketcher.Constraint("Coincident", 0, 2, 1, 1))
sketch6.addConstraint(Sketcher.Constraint("Coincident", 1, 2, 2, 1))
sketch6.addConstraint(Sketcher.Constraint("Coincident", 2, 2, 3, 1))
sketch6.addConstraint(Sketcher.Constraint("Coincident", 3, 2, 4, 1))
sketch6.addConstraint(Sketcher.Constraint("Coincident", 4, 2, 5, 1))
sketch6.addConstraint(Sketcher.Constraint("Coincident", 5, 2, 0, 1))
sketch6.addConstraint(Sketcher.Constraint("Vertical", 0))
sketch6.addConstraint(Sketcher.Constraint("Horizontal", 1))
sketch6.addConstraint(Sketcher.Constraint("Vertical", 2))
sketch6.addConstraint(Sketcher.Constraint("Horizontal", 3))
sketch6.addConstraint(Sketcher.Constraint("Vertical", 4))
sketch6.addConstraint(Sketcher.Constraint("Horizontal", 5))
sketch6.addConstraint(Sketcher.Constraint("PointOnObject", 0, 2, -2))
sketch6.addConstraint(Sketcher.Constraint("DistanceY", 0, 1, 0, 2, Q("305.1 mm")))
sketch6.addConstraint(Sketcher.Constraint("DistanceX", 5, 2, 5, 1, Q("337.106568 mm")))
sketch6.addConstraint(Sketcher.Constraint("DistanceX", 1, 2, 1, 1, Q("388.969117 mm")))
sketch6.addConstraint(Sketcher.Constraint("DistanceY", 2, 2, 2, 1, Q("642.613764 mm")))
sketch6.addConstraint(Sketcher.Constraint("DistanceY", -1, 1, 0, 2, Q("414.56118 mm")))
pocket4 = body.newObject("PartDesign::Pocket", "Pocket003")
pocket4.Profile = sketch6
pocket4.Length = 10

sketch7 = body.newObject("Sketcher::SketchObject", "Sketch006")
sketch7.AttachmentSupport = (doc.getObject("XY_Plane"), [""])
sketch7.MapMode = "FlatFace"
sketch7.AttachmentOffset = App.Placement(V(0, 0, 10), App.Rotation())
sketch7.addGeometry(Part.LineSegment(V(-10, 375, 0), V(-10, 345, 0)), False)
sketch7.addGeometry(Part.LineSegment(V(-10, 345, 0), V(0, 345, 0)), False)
sketch7.addGeometry(Part.LineSegment(V(0, 345, 0), V(0, 375, 0)), False)
sketch7.addGeometry(Part.LineSegment(V(0, 375, 0), V(-10, 375, 0)), False)
sketch7.addConstraint(Sketcher.Constraint("Coincident", 0, 2, 1, 1))
sketch7.addConstraint(Sketcher.Constraint("Coincident", 1, 2, 2, 1))
sketch7.addConstraint(Sketcher.Constraint("Coincident", 2, 2, 3, 1))
sketch7.addConstraint(Sketcher.Constraint("Coincident", 3, 2, 0, 1))
sketch7.addConstraint(Sketcher.Constraint("Vertical", 0))
sketch7.addConstraint(Sketcher.Constraint("Horizontal", 1))
sketch7.addConstraint(Sketcher.Constraint("Vertical", 2))
sketch7.addConstraint(Sketcher.Constraint("Horizontal", 3))
sketch7.addConstraint(Sketcher.Constraint("PointOnObject", 1, 2, -2))
sketch7.addConstraint(Sketcher.Constraint("DistanceX", 1, 1, 1, 2, Q("10 mm")))
sketch7.addConstraint(Sketcher.Constraint("DistanceY", 0, 2, 0, 1, Q("30 mm")))
sketch7.addConstraint(Sketcher.Constraint("DistanceY", -1, 1, 0, 2, Q("344.56118 mm")))
pad3 = body.newObject("PartDesign::Pad", "Pad002")
pad3.Profile = sketch7
pad3.Length = 10
pad3.Reversed = True

doc.recompute()
